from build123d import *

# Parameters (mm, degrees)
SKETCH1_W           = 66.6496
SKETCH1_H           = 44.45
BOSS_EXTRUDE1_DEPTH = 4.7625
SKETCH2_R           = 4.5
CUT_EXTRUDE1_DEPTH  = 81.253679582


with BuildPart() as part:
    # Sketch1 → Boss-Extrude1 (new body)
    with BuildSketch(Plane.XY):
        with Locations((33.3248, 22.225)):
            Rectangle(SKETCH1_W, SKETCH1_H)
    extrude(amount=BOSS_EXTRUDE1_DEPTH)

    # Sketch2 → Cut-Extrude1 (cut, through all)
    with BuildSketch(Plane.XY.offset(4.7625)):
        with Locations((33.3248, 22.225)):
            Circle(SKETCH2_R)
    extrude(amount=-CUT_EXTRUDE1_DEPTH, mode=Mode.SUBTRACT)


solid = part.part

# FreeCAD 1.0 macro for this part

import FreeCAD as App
import Part
import Sketcher

V = App.Vector
Q = App.Units.Quantity

doc = App.newDocument("Part")
body = doc.addObject("PartDesign::Body", "Body")

sketch1 = doc.addObject("Sketcher::SketchObject", "Sketch")
body.addObject(sketch1)
sketch1.AttachmentSupport = (doc.XY_Plane, [""])
sketch1.MapMode = "FlatFace"
sketch1.addGeometry([
    Part.LineSegment(V(0, 44, 0), V(0, 0, 0)),
    Part.LineSegment(V(0, 0, 0), V(67, 0, 0)),
    Part.LineSegment(V(67, 0, 0), V(67, 44, 0)),
    Part.LineSegment(V(67, 44, 0), V(0, 44, 0)),
], False)
sketch1.addConstraint([
    Sketcher.Constraint("Coincident", 0, 2, 1, 1),
    Sketcher.Constraint("Coincident", 1, 2, 2, 1),
    Sketcher.Constraint("Coincident", 2, 2, 3, 1),
    Sketcher.Constraint("Coincident", 3, 2, 0, 1),
    Sketcher.Constraint("Vertical", 0),
    Sketcher.Constraint("Horizontal", 1),
    Sketcher.Constraint("Vertical", 2),
    Sketcher.Constraint("Horizontal", 3),
    Sketcher.Constraint("Coincident", 0, 2, -1, 1),
    Sketcher.Constraint("DistanceY", 0, 2, 0, 1, Q("1.75 in")),
    Sketcher.Constraint("DistanceX", 1, 1, 1, 2, Q("2.624 in")),
])
pad1 = doc.addObject("PartDesign::Pad", "Pad")
body.addObject(pad1)
pad1.Profile = sketch1
pad1.Length = Q("0.1875 in")

sketch2 = doc.addObject("Sketcher::SketchObject", "Sketch001")
body.addObject(sketch2)
sketch2.AttachmentSupport = (doc.XY_Plane, [""])
sketch2.MapMode = "FlatFace"
sketch2.AttachmentOffset = App.Placement(V(0, 0, 0.1875 * 25.4), App.Rotation())
sketch2.addGeometry(Part.Circle(V(33.3, 22.2, 0), V(0, 0, 1), 4.5), False)
sketch2.addConstraint([
    Sketcher.Constraint("Diameter", 0, Q("9 mm")),
    Sketcher.Constraint("DistanceX", -1, 1, 0, 3, Q("1.312 in")),
    Sketcher.Constraint("DistanceY", -1, 1, 0, 3, Q("0.875 in")),
])
pocket1 = doc.addObject("PartDesign::Pocket", "Pocket")
body.addObject(pocket1)
pocket1.Profile = sketch2
pocket1.Type = "ThroughAll"

doc.recompute()
